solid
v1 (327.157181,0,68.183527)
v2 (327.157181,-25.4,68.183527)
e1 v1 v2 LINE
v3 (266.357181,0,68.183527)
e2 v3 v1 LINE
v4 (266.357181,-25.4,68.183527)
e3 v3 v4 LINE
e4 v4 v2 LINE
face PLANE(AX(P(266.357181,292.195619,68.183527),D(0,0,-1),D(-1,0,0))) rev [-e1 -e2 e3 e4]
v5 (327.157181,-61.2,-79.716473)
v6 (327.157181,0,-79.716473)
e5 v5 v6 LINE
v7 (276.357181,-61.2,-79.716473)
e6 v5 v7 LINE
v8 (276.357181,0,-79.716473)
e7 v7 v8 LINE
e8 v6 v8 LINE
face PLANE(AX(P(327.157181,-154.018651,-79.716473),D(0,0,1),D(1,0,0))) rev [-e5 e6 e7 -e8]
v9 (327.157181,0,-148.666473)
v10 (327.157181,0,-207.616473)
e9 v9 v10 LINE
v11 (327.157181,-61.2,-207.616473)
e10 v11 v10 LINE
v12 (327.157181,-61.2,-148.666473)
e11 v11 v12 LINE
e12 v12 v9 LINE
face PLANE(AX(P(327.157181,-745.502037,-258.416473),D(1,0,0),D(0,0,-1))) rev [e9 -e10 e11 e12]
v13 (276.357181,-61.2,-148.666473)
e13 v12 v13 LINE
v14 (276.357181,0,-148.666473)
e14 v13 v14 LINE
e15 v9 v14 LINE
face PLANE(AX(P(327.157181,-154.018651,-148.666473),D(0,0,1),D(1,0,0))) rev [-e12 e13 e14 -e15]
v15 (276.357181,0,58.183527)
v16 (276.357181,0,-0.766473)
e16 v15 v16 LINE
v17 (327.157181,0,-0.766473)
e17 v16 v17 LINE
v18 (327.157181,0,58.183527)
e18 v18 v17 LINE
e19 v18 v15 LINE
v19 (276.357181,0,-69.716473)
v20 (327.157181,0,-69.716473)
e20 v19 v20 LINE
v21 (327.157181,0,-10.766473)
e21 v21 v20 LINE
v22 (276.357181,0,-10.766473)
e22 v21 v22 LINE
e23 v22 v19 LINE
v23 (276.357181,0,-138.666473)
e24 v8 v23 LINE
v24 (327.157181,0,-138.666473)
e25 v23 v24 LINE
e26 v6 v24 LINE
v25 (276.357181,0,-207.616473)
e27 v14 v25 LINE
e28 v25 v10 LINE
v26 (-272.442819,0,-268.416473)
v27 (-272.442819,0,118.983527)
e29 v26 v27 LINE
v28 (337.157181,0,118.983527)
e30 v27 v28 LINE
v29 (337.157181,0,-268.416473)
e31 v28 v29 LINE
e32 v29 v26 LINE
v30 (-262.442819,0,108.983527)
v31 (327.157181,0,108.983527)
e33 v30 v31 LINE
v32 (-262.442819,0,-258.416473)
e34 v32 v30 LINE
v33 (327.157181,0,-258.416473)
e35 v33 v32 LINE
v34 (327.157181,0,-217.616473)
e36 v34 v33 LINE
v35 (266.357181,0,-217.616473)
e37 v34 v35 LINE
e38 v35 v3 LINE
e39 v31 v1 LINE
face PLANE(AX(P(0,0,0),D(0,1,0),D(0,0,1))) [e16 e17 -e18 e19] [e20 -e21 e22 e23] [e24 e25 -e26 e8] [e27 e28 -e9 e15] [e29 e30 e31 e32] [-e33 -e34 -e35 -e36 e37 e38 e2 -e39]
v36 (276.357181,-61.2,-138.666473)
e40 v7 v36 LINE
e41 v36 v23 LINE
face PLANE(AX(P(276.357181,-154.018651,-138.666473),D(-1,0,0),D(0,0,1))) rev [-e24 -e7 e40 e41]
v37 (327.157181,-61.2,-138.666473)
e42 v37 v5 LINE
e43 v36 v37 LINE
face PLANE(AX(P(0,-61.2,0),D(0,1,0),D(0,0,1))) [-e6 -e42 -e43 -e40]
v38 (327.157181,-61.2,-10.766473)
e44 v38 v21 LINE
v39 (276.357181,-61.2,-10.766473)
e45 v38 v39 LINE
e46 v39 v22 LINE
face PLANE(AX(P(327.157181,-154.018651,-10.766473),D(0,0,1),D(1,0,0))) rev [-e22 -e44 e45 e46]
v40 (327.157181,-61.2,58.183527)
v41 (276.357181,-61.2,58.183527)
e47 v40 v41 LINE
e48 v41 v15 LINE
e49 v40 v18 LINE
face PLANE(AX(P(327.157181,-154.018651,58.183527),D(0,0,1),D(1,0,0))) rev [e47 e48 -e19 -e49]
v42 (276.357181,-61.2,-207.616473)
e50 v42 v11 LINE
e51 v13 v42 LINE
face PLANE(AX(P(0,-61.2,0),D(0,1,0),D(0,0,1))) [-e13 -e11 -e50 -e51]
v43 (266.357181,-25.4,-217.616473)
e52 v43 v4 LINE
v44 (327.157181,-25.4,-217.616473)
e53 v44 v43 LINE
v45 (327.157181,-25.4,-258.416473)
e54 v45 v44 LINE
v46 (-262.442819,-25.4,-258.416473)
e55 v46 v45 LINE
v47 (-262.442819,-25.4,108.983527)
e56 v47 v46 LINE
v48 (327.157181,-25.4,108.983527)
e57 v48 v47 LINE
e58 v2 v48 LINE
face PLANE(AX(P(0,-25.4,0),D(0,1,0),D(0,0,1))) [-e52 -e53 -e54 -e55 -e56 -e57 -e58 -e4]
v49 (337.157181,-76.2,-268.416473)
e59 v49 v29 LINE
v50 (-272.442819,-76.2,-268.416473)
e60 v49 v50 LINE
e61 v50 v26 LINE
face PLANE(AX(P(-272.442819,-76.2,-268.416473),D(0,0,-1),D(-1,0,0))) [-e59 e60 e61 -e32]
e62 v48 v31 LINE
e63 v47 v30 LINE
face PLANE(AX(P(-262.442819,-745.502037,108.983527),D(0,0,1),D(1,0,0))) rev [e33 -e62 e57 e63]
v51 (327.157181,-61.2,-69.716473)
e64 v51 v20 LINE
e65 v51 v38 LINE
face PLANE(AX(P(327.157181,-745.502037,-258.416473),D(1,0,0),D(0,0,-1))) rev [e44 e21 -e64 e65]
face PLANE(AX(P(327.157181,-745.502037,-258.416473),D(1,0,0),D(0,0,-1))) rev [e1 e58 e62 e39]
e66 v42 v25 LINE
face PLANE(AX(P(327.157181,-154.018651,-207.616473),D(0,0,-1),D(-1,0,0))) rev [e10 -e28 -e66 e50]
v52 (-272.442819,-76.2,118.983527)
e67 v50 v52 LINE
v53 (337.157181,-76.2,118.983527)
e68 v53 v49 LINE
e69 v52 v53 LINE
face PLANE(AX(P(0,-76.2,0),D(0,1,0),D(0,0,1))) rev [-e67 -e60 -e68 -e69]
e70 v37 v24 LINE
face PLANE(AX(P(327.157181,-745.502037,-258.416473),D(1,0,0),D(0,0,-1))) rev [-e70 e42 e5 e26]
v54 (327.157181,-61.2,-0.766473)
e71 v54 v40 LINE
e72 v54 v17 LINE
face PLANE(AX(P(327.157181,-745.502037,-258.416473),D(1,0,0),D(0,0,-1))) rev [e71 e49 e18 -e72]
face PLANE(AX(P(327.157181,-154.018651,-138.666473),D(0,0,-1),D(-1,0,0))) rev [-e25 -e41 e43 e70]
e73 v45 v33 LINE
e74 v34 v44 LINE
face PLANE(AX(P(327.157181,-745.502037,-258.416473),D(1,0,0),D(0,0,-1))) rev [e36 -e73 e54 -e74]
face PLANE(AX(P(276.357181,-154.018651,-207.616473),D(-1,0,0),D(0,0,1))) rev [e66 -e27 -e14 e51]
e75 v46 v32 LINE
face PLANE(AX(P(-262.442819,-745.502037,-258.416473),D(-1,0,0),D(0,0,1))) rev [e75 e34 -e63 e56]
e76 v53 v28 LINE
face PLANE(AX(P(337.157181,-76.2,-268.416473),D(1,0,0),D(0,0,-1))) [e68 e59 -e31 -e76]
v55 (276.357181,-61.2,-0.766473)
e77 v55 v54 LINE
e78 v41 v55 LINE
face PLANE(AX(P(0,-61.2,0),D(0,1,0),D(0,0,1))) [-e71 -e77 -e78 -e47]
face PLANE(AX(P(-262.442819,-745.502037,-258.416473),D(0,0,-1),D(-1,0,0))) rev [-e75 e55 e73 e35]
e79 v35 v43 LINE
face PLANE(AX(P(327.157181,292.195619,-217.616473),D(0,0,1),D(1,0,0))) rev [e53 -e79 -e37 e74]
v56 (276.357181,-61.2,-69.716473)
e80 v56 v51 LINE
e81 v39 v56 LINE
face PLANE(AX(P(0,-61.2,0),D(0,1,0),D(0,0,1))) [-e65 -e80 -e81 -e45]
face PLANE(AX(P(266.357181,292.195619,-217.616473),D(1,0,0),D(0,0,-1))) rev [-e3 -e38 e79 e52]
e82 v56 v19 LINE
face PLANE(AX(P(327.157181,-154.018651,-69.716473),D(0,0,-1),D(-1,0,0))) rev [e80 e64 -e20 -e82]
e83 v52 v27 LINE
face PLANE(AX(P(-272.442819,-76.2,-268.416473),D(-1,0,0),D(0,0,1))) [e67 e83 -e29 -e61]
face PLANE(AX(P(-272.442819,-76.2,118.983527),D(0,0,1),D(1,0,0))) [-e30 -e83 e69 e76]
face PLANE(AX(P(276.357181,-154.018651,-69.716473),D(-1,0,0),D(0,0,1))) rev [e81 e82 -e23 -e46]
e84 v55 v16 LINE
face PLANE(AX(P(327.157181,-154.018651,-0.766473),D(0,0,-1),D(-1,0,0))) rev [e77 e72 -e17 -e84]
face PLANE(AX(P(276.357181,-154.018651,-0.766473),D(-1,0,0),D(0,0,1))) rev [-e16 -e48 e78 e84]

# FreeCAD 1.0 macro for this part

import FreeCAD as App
import Part
import Sketcher
from FreeCAD import Vector


def add_polygon(sketch, points):
    """Adds a closed chain of lines whose ends are joined by coincident constraints."""
    first, n = sketch.GeometryCount, len(points)
    for a, b in zip(points, points[1:] + points[:1]):
        sketch.addGeometry(Part.LineSegment(App.Vector(*a, 0), App.Vector(*b, 0)), False)
    for i in range(n):
        sketch.addConstraint(Sketcher.Constraint("Coincident", first + i, 2, first + (i + 1) % n, 1))

doc = App.newDocument("Part")
body = doc.addObject("PartDesign::Body", "Body")

sketch1 = doc.addObject("Sketcher::SketchObject", "Sketch")
body.addObject(sketch1)
sketch1.AttachmentSupport = (doc.XZ_Plane, [""])
sketch1.MapMode = "FlatFace"
add_polygon(sketch1, [(-272, -268), (-272, 119), (337, 119), (337, -268)])
sketch1.addConstraint([
    Sketcher.Constraint("Vertical", 0),
    Sketcher.Constraint("Horizontal", 1),
    Sketcher.Constraint("Vertical", 2),
    Sketcher.Constraint("Horizontal", 3),
    Sketcher.Constraint("DistanceX", 1, 1, 1, 2, 609.6),
    Sketcher.Constraint("DistanceY", 0, 1, 0, 2, 387.4),
    Sketcher.Constraint("DistanceX", 0, 2, -1, 1, 272.442819),
    Sketcher.Constraint("DistanceY", -1, 1, 0, 2, 118.983527),
])
pad1 = doc.addObject("PartDesign::Pad", "Pad")
body.addObject(pad1)
pad1.Profile = sketch1
pad1.Length = 76.2

sketch2 = doc.addObject("Sketcher::SketchObject", "Sketch001")
body.addObject(sketch2)
sketch2.AttachmentSupport = (doc.XZ_Plane, [""])
sketch2.MapMode = "FlatFace"
add_polygon(sketch2, [(-262, -258), (-262, 109), (327, 109), (327, -258)])
sketch2.addConstraint([
    Sketcher.Constraint("Vertical", 0),
    Sketcher.Constraint("Horizontal", 1),
    Sketcher.Constraint("Vertical", 2),
    Sketcher.Constraint("Horizontal", 3),
    Sketcher.Constraint("DistanceX", 1, 1, 1, 2, 589.6),
    Sketcher.Constraint("DistanceY", 0, 1, 0, 2, 367.4),
    Sketcher.Constraint("DistanceX", 0, 2, -1, 1, 262.442819),
    Sketcher.Constraint("DistanceY", -1, 1, 0, 2, 108.983527),
])
pocket1 = doc.addObject("PartDesign::Pocket", "Pocket")
body.addObject(pocket1)
pocket1.Profile = sketch2
pocket1.Length = 25.4
pocket1.Reversed = True

sketch3 = doc.addObject("Sketcher::SketchObject", "Sketch002")
body.addObject(sketch3)
sketch3.AttachmentSupport = (doc.XZ_Plane, [""])
sketch3.MapMode = "FlatFace"
sketch3.AttachmentOffset = App.Placement(Vector(0, 0, 25.4), App.Rotation())
add_polygon(sketch3, [(276, -208), (276, -149), (327, -149), (327, -208)])
add_polygon(sketch3, [(276, -139), (276, -80), (327, -80), (327, -139)])
add_polygon(sketch3, [(276, -70), (276, -11), (327, -11), (327, -70)])
add_polygon(sketch3, [(276, -1), (276, 58), (327, 58), (327, -1)])
sketch3.addConstraint([
    Sketcher.Constraint("Vertical", 0),
    Sketcher.Constraint("Horizontal", 1),
    Sketcher.Constraint("Vertical", 2),
    Sketcher.Constraint("Horizontal", 3),
    Sketcher.Constraint("Vertical", 4),
    Sketcher.Constraint("Horizontal", 5),
    Sketcher.Constraint("Vertical", 6),
    Sketcher.Constraint("Horizontal", 7),
    Sketcher.Constraint("Vertical", 8),
    Sketcher.Constraint("Horizontal", 9),
    Sketcher.Constraint("Vertical", 10),
    Sketcher.Constraint("Horizontal", 11),
    Sketcher.Constraint("Vertical", 12),
    Sketcher.Constraint("Horizontal", 13),
    Sketcher.Constraint("Vertical", 14),
    Sketcher.Constraint("Horizontal", 15),
    Sketcher.Constraint("Vertical", 3, 2, 4, 2),
    Sketcher.Constraint("Vertical", 2, 2, 5, 2),
    Sketcher.Constraint("Vertical", 7, 2, 8, 2),
    Sketcher.Constraint("Vertical", 6, 2, 9, 2),
    Sketcher.Constraint("Vertical", 11, 2, 12, 2),
    Sketcher.Constraint("Vertical", 10, 2, 13, 2),
    Sketcher.Constraint("Equal", 2, 4),
    Sketcher.Constraint("Equal", 6, 8),
    Sketcher.Constraint("Equal", 10, 12),
    Sketcher.Constraint("DistanceX", 1, 1, 1, 2, 50.8),
    Sketcher.Constraint("DistanceY", 1, 2, 6, 2, 10.0),
    Sketcher.Constraint("DistanceY", 5, 2, 10, 2, 10.0),
    Sketcher.Constraint("DistanceY", 9, 2, 14, 2, 10.0),
    Sketcher.Constraint("DistanceY", 0, 1, 0, 2, 58.95),
    Sketcher.Constraint("DistanceX", -1, 1, 0, 2, 276.357181),
    Sketcher.Constraint("DistanceY", 0, 2, -1, 1, 148.666473),
])
pocket2 = doc.addObject("PartDesign::Pocket", "Pocket001")
body.addObject(pocket2)
pocket2.Profile = sketch3
pocket2.Length = 35.8
pocket2.Reversed = True

sketch4 = doc.addObject("Sketcher::SketchObject", "Sketch003")
body.addObject(sketch4)
sketch4.AttachmentSupport = (doc.XZ_Plane, [""])
sketch4.MapMode = "FlatFace"
sketch4.AttachmentOffset = App.Placement(Vector(0, 0, 25.4), App.Rotation())
add_polygon(sketch4, [(327, -218), (266, -218), (266, 68), (327, 68), (327, 58), (276, 58), (276, -1), (327, -1), (327, -11), (276, -11), (276, -70), (327, -70), (327, -80), (276, -80), (276, -139), (327, -139), (327, -149), (276, -149), (276, -208), (327, -208)])
sketch4.addConstraint([
    Sketcher.Constraint("Horizontal", 0),
    Sketcher.Constraint("Vertical", 1),
    Sketcher.Constraint("Horizontal", 2),
    Sketcher.Constraint("Vertical", 3),
    Sketcher.Constraint("Horizontal", 4),
    Sketcher.Constraint("Vertical", 5),
    Sketcher.Constraint("Horizontal", 6),
    Sketcher.Constraint("Vertical", 7),
    Sketcher.Constraint("Horizontal", 8),
    Sketcher.Constraint("Vertical", 9),
    Sketcher.Constraint("Horizontal", 10),
    Sketcher.Constraint("Vertical", 11),
    Sketcher.Constraint("Horizontal", 12),
    Sketcher.Constraint("Vertical", 13),
    Sketcher.Constraint("Horizontal", 14),
    Sketcher.Constraint("Vertical", 15),
    Sketcher.Constraint("Horizontal", 16),
    Sketcher.Constraint("Vertical", 17),
    Sketcher.Constraint("Horizontal", 18),
    Sketcher.Constraint("Vertical", 19),
    Sketcher.Constraint("Vertical", 3, 2, 6, 2),
    Sketcher.Constraint("Vertical", 5, 2, 8, 2),
    Sketcher.Constraint("Vertical", 7, 2, 10, 2),
    Sketcher.Constraint("Vertical", 9, 2, 12, 2),
    Sketcher.Constraint("Vertical", 11, 2, 14, 2),
    Sketcher.Constraint("Vertical", 13, 2, 16, 2),
    Sketcher.Constraint("Vertical", 15, 2, 18, 2),
    Sketcher.Constraint("Equal", 3, 7),
    Sketcher.Constraint("Equal", 5, 9),
    Sketcher.Constraint("Equal", 7, 11),
    Sketcher.Constraint("Equal", 9, 13),
    Sketcher.Constraint("Equal", 11, 15),
    Sketcher.Constraint("Equal", 13, 17),
    Sketcher.Constraint("Equal", 15, 19),
    Sketcher.Constraint("DistanceY", 3, 2, 3, 1, 10.0),
    Sketcher.Constraint("DistanceX", 0, 2, 0, 1, 60.8),
    Sketcher.Constraint("DistanceX", 4, 2, 4, 1, 50.8),
    Sketcher.Constraint("DistanceY", 1, 1, 1, 2, 285.8),
    Sketcher.Constraint("DistanceX", -1, 1, 0, 2, 266.357181),
    Sketcher.Constraint("DistanceY", 0, 2, -1, 1, 217.616473),
])
pad2 = doc.addObject("PartDesign::Pad", "Pad001")
body.addObject(pad2)
pad2.Profile = sketch4
pad2.Length = 25.4
pad2.Reversed = True

doc.recompute()
